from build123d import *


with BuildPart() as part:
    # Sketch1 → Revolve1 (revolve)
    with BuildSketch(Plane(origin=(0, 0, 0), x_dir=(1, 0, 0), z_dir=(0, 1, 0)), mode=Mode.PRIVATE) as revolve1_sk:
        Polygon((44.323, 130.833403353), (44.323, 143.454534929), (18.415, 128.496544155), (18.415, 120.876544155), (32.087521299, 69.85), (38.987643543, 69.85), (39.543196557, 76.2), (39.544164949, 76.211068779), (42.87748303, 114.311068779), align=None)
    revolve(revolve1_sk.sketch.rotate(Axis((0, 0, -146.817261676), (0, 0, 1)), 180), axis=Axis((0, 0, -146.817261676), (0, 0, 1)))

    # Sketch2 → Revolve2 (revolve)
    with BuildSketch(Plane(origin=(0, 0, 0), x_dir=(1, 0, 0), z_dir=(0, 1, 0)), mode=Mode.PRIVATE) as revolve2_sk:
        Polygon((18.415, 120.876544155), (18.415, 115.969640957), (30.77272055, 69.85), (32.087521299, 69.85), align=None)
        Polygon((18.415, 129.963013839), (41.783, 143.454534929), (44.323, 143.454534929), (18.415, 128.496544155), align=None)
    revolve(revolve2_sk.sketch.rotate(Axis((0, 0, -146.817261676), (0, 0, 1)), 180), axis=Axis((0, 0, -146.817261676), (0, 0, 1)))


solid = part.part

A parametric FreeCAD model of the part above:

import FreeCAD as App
import Part
import Sketcher
Q = App.Units.Quantity


def add_polygon(sketch, points):
    """Adds a closed chain of lines whose ends are joined by coincident constraints."""
    first, n = sketch.GeometryCount, len(points)
    for a, b in zip(points, points[1:] + points[:1]):
        sketch.addGeometry(Part.LineSegment(App.Vector(*a, 0), App.Vector(*b, 0)), False)
    for i in range(n):
        sketch.addConstraint(Sketcher.Constraint("Coincident", first + i, 2, first + (i + 1) % n, 1))

doc = App.newDocument("Part")
body = doc.addObject("PartDesign::Body", "Body")

sketch1 = body.newObject("Sketcher::SketchObject", "Sketch")
sketch1.AttachmentSupport = (doc.getObject("XZ_Plane"), [""])
sketch1.MapMode = "FlatFace"
add_polygon(sketch1, [(44.323, -130.833), (44.323, -143.455), (18.415, -128.497), (18.415, -120.877), (32.088, -69.85), (38.988, -69.85), (39.543, -76.2), (39.544, -76.211), (42.877, -114.311)])
sketch1.addConstraint(Sketcher.Constraint("Vertical", 0))
sketch1.addConstraint(Sketcher.Constraint("Vertical", 2))
sketch1.addConstraint(Sketcher.Constraint("Horizontal", 4))
sketch1.addConstraint(Sketcher.Constraint("Parallel", 5, 6))
sketch1.addConstraint(Sketcher.Constraint("Parallel", 5, 7))
sketch1.addConstraint(Sketcher.Constraint("Parallel", 7, 8))
sketch1.addConstraint(Sketcher.Constraint("DistanceY", 2, 1, 2, 2, Q("0.3 in")))
sketch1.addConstraint(Sketcher.Constraint("DistanceY", 5, 2, -1, 1, Q("3 in")))
sketch1.addConstraint(Sketcher.Constraint("Angle", 1, Q("150 deg")))
sketch1.addConstraint(Sketcher.Constraint("Angle", 3, Q("75 deg")))
sketch1.addConstraint(Sketcher.Constraint("Angle", 5, Q("-85 deg")))
sketch1.addConstraint(Sketcher.Constraint("DistanceY", 7, 2, 6, 2, Q("1.5 in")))
sketch1.addConstraint(Sketcher.Constraint("DistanceY", 3, 2, -1, 1, Q("2.75 in")))
sketch1.addConstraint(Sketcher.Constraint("DistanceX", 1, 2, 0, 2, Q("1.02 in")))
sketch1.addConstraint(Sketcher.Constraint("DistanceX", -1, 1, 0, 2, Q("1.745 in")))
sketch1.addConstraint(Sketcher.Constraint("DistanceY", 0, 2, 0, 1, 12.621132))
sketch1.addConstraint(Sketcher.Constraint("Distance", 6, 0.011111))
sketch1.addConstraint(Sketcher.Constraint("DistanceX", 4, 1, 4, 2, 6.900122))
revolution = body.newObject("PartDesign::Revolution", "Revolution")
revolution.Profile = sketch1
revolution.ReferenceAxis = (sketch1, ["V_Axis"])
revolution.Angle = 360

sketch2 = body.newObject("Sketcher::SketchObject", "Sketch001")
sketch2.AttachmentSupport = (doc.getObject("XZ_Plane"), [""])
sketch2.MapMode = "FlatFace"
add_polygon(sketch2, [(18.4, -120.9), (18.4, -116), (30.8, -69.8), (32.1, -69.8)])
add_polygon(sketch2, [(41.8, -143.5), (18.4, -130), (18.4, -128.5), (44.3, -143.5)])
sketch2.addConstraint(Sketcher.Constraint("Vertical", 0))
sketch2.addConstraint(Sketcher.Constraint("Horizontal", 2))
sketch2.addConstraint(Sketcher.Constraint("Vertical", 5))
sketch2.addConstraint(Sketcher.Constraint("Horizontal", 7))
sketch2.addConstraint(Sketcher.Constraint("Parallel", 1, 3))
sketch2.addConstraint(Sketcher.Constraint("Parallel", 4, 6))
sketch2.addConstraint(Sketcher.Constraint("Vertical", 3, 2, 4, 2))
sketch2.addConstraint(Sketcher.Constraint("DistanceX", 7, 2, 7, 1, Q("0.1 in")))
sketch2.addConstraint(Sketcher.Constraint("Angle", 1, Q("75 deg")))
sketch2.addConstraint(Sketcher.Constraint("Angle", 4, Q("150 deg")))
sketch2.addConstraint(Sketcher.Constraint("DistanceY", 5, 2, 3, 2, Q("0.3 in")))
sketch2.addConstraint(Sketcher.Constraint("DistanceY", 1, 2, -1, 1, Q("2.75 in")))
sketch2.addConstraint(Sketcher.Constraint("DistanceX", 4, 2, 6, 2, Q("1.02 in")))
sketch2.addConstraint(Sketcher.Constraint("DistanceX", -1, 1, 0, 2, Q("0.725 in")))
sketch2.addConstraint(Sketcher.Constraint("DistanceX", 2, 1, 2, 2, 1.314801))
sketch2.addConstraint(Sketcher.Constraint("DistanceY", 0, 2, -1, 1, 115.969641))
revolution2 = body.newObject("PartDesign::Revolution", "Revolution001")
revolution2.Profile = sketch2
revolution2.ReferenceAxis = (sketch2, ["V_Axis"])
revolution2.Angle = 360

doc.recompute()
